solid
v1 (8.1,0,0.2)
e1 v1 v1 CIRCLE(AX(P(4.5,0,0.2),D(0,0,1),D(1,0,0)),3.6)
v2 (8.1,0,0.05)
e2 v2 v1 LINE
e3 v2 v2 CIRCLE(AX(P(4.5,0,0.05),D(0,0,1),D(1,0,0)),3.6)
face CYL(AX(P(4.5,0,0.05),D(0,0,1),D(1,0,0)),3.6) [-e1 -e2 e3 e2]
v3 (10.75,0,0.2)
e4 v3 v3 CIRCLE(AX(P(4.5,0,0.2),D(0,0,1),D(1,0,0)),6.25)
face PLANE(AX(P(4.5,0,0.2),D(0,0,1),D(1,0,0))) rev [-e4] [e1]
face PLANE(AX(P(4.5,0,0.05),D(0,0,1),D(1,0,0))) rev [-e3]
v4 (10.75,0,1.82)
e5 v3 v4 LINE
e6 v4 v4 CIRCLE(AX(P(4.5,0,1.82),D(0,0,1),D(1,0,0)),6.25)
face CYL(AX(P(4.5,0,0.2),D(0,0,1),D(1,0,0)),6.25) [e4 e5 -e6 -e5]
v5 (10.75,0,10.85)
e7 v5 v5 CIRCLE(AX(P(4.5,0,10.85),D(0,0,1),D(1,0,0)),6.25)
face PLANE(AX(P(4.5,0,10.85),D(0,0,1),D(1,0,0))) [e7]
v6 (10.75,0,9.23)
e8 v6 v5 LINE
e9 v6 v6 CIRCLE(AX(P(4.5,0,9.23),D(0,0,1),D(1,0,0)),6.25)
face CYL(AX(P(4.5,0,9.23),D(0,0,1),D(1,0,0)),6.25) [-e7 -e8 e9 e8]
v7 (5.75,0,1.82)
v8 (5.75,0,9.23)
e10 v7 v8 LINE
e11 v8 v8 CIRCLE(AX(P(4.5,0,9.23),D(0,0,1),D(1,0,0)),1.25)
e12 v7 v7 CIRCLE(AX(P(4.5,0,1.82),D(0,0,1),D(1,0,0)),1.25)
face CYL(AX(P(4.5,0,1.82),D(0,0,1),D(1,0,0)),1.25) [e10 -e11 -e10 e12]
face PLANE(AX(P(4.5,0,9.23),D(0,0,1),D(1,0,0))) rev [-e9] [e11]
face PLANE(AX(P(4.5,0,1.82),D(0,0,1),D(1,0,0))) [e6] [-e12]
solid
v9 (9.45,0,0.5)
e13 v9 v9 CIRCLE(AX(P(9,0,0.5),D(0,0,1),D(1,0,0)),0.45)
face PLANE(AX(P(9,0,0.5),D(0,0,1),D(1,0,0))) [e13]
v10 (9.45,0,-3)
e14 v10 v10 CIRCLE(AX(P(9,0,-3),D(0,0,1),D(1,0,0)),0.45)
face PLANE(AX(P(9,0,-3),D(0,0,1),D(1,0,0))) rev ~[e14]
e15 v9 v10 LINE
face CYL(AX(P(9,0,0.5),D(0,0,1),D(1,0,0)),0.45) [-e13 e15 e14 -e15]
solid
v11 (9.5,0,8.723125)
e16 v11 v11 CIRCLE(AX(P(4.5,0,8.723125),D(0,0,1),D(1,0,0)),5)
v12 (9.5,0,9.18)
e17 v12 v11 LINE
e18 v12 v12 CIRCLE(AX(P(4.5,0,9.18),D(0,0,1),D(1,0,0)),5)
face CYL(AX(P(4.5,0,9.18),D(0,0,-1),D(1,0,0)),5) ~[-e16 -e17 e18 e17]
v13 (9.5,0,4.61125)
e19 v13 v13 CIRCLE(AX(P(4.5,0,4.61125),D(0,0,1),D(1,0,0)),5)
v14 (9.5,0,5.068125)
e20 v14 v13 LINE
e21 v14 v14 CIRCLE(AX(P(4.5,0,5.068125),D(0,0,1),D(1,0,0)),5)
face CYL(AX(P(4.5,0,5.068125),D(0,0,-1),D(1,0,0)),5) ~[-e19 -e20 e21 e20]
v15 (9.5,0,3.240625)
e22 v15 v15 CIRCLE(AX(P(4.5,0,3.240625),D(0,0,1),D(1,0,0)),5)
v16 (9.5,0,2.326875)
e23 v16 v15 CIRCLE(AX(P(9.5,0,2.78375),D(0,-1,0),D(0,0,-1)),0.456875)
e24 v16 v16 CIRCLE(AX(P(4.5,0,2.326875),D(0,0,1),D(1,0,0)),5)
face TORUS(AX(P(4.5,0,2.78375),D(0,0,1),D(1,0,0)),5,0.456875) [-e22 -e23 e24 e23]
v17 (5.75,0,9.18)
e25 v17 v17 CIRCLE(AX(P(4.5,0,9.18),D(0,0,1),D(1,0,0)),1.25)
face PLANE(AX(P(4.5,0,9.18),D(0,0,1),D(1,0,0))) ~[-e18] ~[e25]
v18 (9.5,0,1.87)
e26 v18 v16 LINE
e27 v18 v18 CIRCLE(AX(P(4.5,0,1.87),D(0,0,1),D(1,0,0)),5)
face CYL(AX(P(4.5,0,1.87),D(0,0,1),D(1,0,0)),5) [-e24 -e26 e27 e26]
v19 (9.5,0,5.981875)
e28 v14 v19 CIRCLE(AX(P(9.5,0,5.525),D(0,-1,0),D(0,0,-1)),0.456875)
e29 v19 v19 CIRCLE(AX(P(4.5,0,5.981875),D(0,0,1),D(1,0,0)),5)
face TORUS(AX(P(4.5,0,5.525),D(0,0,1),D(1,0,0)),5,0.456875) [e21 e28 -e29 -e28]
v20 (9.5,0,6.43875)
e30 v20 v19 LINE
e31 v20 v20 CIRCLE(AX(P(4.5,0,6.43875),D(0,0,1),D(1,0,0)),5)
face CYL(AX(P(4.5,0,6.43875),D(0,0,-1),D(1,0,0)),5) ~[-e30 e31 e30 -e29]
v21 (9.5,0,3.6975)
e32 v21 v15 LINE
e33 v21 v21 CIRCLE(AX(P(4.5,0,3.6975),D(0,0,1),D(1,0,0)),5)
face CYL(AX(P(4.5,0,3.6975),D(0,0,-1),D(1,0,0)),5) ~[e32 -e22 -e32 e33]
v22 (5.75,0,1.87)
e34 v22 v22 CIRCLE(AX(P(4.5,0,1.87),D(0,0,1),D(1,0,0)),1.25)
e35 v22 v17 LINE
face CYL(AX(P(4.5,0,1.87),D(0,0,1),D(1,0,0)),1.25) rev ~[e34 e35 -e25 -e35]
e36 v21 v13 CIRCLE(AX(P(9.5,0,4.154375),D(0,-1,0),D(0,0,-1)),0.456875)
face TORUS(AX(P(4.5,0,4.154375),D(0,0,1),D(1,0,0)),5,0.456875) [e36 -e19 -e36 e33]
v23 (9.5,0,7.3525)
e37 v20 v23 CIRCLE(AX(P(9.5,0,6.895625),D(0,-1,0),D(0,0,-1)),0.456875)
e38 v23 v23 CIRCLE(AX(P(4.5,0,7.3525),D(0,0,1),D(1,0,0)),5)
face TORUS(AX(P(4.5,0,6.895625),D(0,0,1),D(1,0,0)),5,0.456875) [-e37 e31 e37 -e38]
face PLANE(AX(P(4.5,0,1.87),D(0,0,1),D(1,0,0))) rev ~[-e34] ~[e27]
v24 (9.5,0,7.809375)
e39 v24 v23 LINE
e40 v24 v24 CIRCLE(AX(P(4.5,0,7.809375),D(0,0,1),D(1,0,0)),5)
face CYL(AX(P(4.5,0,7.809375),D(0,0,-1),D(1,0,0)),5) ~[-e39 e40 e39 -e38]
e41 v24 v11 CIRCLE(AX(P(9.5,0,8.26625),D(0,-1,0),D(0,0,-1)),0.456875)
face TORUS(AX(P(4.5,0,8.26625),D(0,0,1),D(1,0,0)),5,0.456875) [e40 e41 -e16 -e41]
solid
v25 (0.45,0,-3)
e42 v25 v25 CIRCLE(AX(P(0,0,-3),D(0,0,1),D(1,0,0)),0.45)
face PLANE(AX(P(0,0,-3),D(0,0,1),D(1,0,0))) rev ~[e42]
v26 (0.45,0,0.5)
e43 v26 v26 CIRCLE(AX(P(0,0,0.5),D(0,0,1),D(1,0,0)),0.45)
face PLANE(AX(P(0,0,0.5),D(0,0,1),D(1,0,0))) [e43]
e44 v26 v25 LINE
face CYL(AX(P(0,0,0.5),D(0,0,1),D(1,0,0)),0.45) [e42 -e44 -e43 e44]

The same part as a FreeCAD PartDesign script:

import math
import FreeCAD as App
import Part
import Sketcher
from FreeCAD import Vector


def add_polygon(sketch, points):
    """Adds a closed chain of lines whose ends are joined by coincident constraints."""
    first, n = sketch.GeometryCount, len(points)
    for a, b in zip(points, points[1:] + points[:1]):
        sketch.addGeometry(Part.LineSegment(App.Vector(*a, 0), App.Vector(*b, 0)), False)
    for i in range(n):
        sketch.addConstraint(Sketcher.Constraint("Coincident", first + i, 2, first + (i + 1) % n, 1))

doc = App.newDocument("Part")
body = doc.addObject("PartDesign::Body", "Body")
body.AllowCompound = True

# Sketch on XY plane
sketch1 = body.newObject("Sketcher::SketchObject", "Sketch")
sketch1.AttachmentSupport = (doc.getObject("XY_Plane"), [""])
sketch1.MapMode = "FlatFace"
sketch1.AttachmentOffset = App.Placement(Vector(0, 0, 0.5), App.Rotation())
sketch1.addGeometry([
    Part.Circle(Vector(0, 0, 0), Vector(0, 0, 1), 0.45),
    Part.Circle(Vector(9, 0, 0), Vector(0, 0, 1), 0.45),
], False)
sketch1.addConstraint([
    Sketcher.Constraint("Coincident", 0, 3, -1, 1),
    Sketcher.Constraint("Equal", 0, 1),
    Sketcher.Constraint("PointOnObject", 1, 3, -1),
    Sketcher.Constraint("Diameter", 0, 0.9),
    Sketcher.Constraint("DistanceX", -1, 1, 1, 3, 9.0),
])
pad1 = body.newObject("PartDesign::Pad", "Pad")
pad1.Profile = sketch1
pad1.Length = 3.5
pad1.Reversed = True
body2 = doc.addObject("PartDesign::Body", "Body001")

# Sketch on XZ plane
sketch2 = body2.newObject("Sketcher::SketchObject", "Sketch001")
sketch2.AttachmentSupport = (doc.getObject("XZ_Plane001"), [""])
sketch2.MapMode = "FlatFace"
add_polygon(sketch2, [(4.5, 0.05), (8.1, 0.05), (8.1, 0.2), (10.75, 0.2), (10.75, 1.82), (5.75, 1.82), (5.75, 9.23), (10.75, 9.23), (10.75, 10.85), (4.5, 10.85)])  # lines 0-9
sketch2.addGeometry(Part.LineSegment(Vector(4.5, 0.05, 0), Vector(4.5, 10.85, 0)), True)  # axis
sketch2.addConstraint([
    Sketcher.Constraint("Horizontal", 0),
    Sketcher.Constraint("Vertical", 1),
    Sketcher.Constraint("Horizontal", 2),
    Sketcher.Constraint("Vertical", 3),
    Sketcher.Constraint("Horizontal", 4),
    Sketcher.Constraint("Vertical", 5),
    Sketcher.Constraint("Horizontal", 6),
    Sketcher.Constraint("Vertical", 7),
    Sketcher.Constraint("Horizontal", 8),
    Sketcher.Constraint("Vertical", 9),
    Sketcher.Constraint("Vertical", 10),
    Sketcher.Constraint("Coincident", 10, 1, 9, 2),
    Sketcher.Constraint("Horizontal", 7, 2, 10, 2),
    Sketcher.Constraint("Vertical", 3, 2, 6, 2),
    Sketcher.Constraint("Equal", 3, 7),
    Sketcher.Constraint("DistanceX", 4, 2, 4, 1, 5.0),
    Sketcher.Constraint("DistanceX", 0, 1, 0, 2, 3.6),
    Sketcher.Constraint("DistanceY", 9, 2, 9, 1, 10.8),
    Sketcher.Constraint("DistanceX", 2, 1, 2, 2, 2.65),
    Sketcher.Constraint("DistanceY", 1, 1, 1, 2, 0.15),
    Sketcher.Constraint("DistanceY", 3, 1, 3, 2, 1.62),
    Sketcher.Constraint("DistanceX", -1, 1, 0, 2, 8.1),
    Sketcher.Constraint("DistanceY", -1, 1, 1, 2, 0.2),
])
revolution = body2.newObject("PartDesign::Revolution", "Revolution")
revolution.Profile = sketch2
revolution.ReferenceAxis = (sketch2, ["Axis0"])
revolution.Angle = 360
body3 = doc.addObject("PartDesign::Body", "Body002")

# Sketch on XZ plane
sketch3 = body3.newObject("Sketcher::SketchObject", "Sketch002")
sketch3.AttachmentSupport = (doc.getObject("XZ_Plane002"), [""])
sketch3.MapMode = "FlatFace"
sketch3.addGeometry([
    Part.LineSegment(Vector(5.75, 1.87, 0), Vector(9.5, 1.87, 0)),  # 0
    Part.LineSegment(Vector(9.5, 1.87, 0), Vector(9.5, 2.33, 0)),  # 1
    Part.ArcOfCircle(Part.Circle(Vector(9.5, 2.78, 0), Vector(0, 0, 1), 0.46), math.radians(-90), math.radians(90)),  # 2
    Part.LineSegment(Vector(9.5, 3.24, 0), Vector(9.5, 3.7, 0)),  # 3
    Part.ArcOfCircle(Part.Circle(Vector(9.5, 4.15, 0), Vector(0, 0, 1), 0.46), math.radians(-90), math.radians(90)),  # 4
    Part.LineSegment(Vector(9.5, 4.61, 0), Vector(9.5, 5.07, 0)),  # 5
    Part.ArcOfCircle(Part.Circle(Vector(9.5, 5.53, 0), Vector(0, 0, 1), 0.46), math.radians(-90), math.radians(90)),  # 6
    Part.LineSegment(Vector(9.5, 5.98, 0), Vector(9.5, 6.44, 0)),  # 7
    Part.ArcOfCircle(Part.Circle(Vector(9.5, 6.9, 0), Vector(0, 0, 1), 0.46), math.radians(-90), math.radians(90)),  # 8
    Part.LineSegment(Vector(9.5, 7.35, 0), Vector(9.5, 7.81, 0)),  # 9
    Part.ArcOfCircle(Part.Circle(Vector(9.5, 8.27, 0), Vector(0, 0, 1), 0.46), math.radians(-90), math.radians(90)),  # 10
    Part.LineSegment(Vector(9.5, 8.72, 0), Vector(9.5, 9.18, 0)),  # 11
    Part.LineSegment(Vector(9.5, 9.18, 0), Vector(5.75, 9.18, 0)),  # 12
    Part.LineSegment(Vector(5.75, 9.18, 0), Vector(5.75, 1.87, 0)),  # 13
], False)
sketch3.addGeometry(Part.LineSegment(Vector(4.5, 1.87, 0), Vector(4.5, 9.18, 0)), True)  # axis
sketch3.addConstraint([
    Sketcher.Constraint("Coincident", 0, 2, 1, 1),
    Sketcher.Constraint("Coincident", 1, 2, 2, 1),
    Sketcher.Constraint("Coincident", 2, 2, 3, 1),
    Sketcher.Constraint("Coincident", 3, 2, 4, 1),
    Sketcher.Constraint("Coincident", 4, 2, 5, 1),
    Sketcher.Constraint("Coincident", 5, 2, 6, 1),
    Sketcher.Constraint("Coincident", 6, 2, 7, 1),
    Sketcher.Constraint("Coincident", 7, 2, 8, 1),
    Sketcher.Constraint("Coincident", 8, 2, 9, 1),
    Sketcher.Constraint("Coincident", 9, 2, 10, 1),
    Sketcher.Constraint("Coincident", 10, 2, 11, 1),
    Sketcher.Constraint("Coincident", 11, 2, 12, 1),
    Sketcher.Constraint("Coincident", 12, 2, 13, 1),
    Sketcher.Constraint("Coincident", 13, 2, 0, 1),
    Sketcher.Constraint("Horizontal", 0),
    Sketcher.Constraint("Vertical", 1),
    Sketcher.Constraint("Vertical", 3),
    Sketcher.Constraint("Vertical", 5),
    Sketcher.Constraint("Vertical", 7),
    Sketcher.Constraint("Vertical", 9),
    Sketcher.Constraint("Vertical", 11),
    Sketcher.Constraint("Horizontal", 12),
    Sketcher.Constraint("Vertical", 13),
    Sketcher.Constraint("Vertical", 14),
    Sketcher.Constraint("Equal", 2, 4),
    Sketcher.Constraint("Equal", 4, 6),
    Sketcher.Constraint("Equal", 6, 8),
    Sketcher.Constraint("Equal", 8, 10),
    Sketcher.Constraint("Horizontal", 13, 2, 14, 1),
    Sketcher.Constraint("Horizontal", 12, 2, 14, 2),
    Sketcher.Constraint("Vertical", 2, 3, 4, 3),
    Sketcher.Constraint("Vertical", 4, 3, 6, 3),
    Sketcher.Constraint("Vertical", 6, 3, 8, 3),
    Sketcher.Constraint("Vertical", 8, 3, 10, 3),
    Sketcher.Constraint("Vertical", 10, 3, 0, 2),
    Sketcher.Constraint("Vertical", 1, 2, 2, 2),
    Sketcher.Constraint("Vertical", 3, 2, 4, 2),
    Sketcher.Constraint("Vertical", 5, 2, 6, 2),
    Sketcher.Constraint("Vertical", 7, 2, 8, 2),
    Sketcher.Constraint("Vertical", 9, 2, 10, 2),
    Sketcher.Constraint("Equal", 1, 3),
    Sketcher.Constraint("Equal", 3, 5),
    Sketcher.Constraint("Equal", 5, 7),
    Sketcher.Constraint("Equal", 7, 9),
    Sketcher.Constraint("Equal", 9, 11),
    Sketcher.Constraint("DistanceX", 14, 1, 0, 2, 5.0),
    Sketcher.Constraint("DistanceX", 0, 1, 0, 2, 3.75),
    Sketcher.Constraint("DistanceY", 13, 2, 13, 1, 7.31),
    Sketcher.Constraint("DistanceX", -1, 1, 2, 3, 9.5),
    Sketcher.Constraint("DistanceY", -1, 1, 0, 2, 1.87),
    Sketcher.Constraint("Radius", 2, 0.456875),
])
revolution2 = body3.newObject("PartDesign::Revolution", "Revolution001")
revolution2.Profile = sketch3
revolution2.ReferenceAxis = (sketch3, ["Axis0"])
revolution2.Angle = 360

doc.recompute()
